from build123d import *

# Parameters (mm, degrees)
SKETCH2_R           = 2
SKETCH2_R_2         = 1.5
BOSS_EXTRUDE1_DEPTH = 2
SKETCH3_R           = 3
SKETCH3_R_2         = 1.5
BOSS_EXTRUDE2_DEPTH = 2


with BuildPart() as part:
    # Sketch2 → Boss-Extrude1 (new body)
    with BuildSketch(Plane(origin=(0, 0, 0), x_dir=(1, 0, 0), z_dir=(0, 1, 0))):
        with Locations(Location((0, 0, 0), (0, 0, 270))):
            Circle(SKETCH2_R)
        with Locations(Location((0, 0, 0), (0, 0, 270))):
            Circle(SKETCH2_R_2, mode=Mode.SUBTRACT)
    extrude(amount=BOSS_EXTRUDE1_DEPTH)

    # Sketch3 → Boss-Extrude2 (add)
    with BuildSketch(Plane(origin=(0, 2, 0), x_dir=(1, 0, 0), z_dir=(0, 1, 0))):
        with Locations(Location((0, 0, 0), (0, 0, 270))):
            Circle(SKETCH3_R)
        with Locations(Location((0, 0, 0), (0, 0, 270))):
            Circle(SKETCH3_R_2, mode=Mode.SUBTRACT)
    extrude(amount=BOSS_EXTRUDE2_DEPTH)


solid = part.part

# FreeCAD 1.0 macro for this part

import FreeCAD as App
import Part
import Sketcher

V = App.Vector
Q = App.Units.Quantity

doc = App.newDocument("Part")
body = doc.addObject("PartDesign::Body", "Body")

sketch1 = body.newObject("Sketcher::SketchObject", "Sketch")
sketch1.AttachmentSupport = (doc.getObject("XZ_Plane"), [""])
sketch1.MapMode = "FlatFace"
sketch1.addGeometry([
    Part.Circle(V(0, 0, 0), V(0, 0, 1), 2),
    Part.Circle(V(0, 0, 0), V(0, 0, 1), 1.5),
], False)
sketch1.addConstraint([
    Sketcher.Constraint("Coincident", 0, 3, -1, 1),
    Sketcher.Constraint("Coincident", 1, 3, -1, 1),
    Sketcher.Constraint("Diameter", 0, Q("4 mm")),
    Sketcher.Constraint("Diameter", 1, Q("3 mm")),
])
pad1 = body.newObject("PartDesign::Pad", "Pad")
pad1.Profile = sketch1
pad1.Length = 2
pad1.Reversed = True

sketch2 = body.newObject("Sketcher::SketchObject", "Sketch001")
sketch2.AttachmentSupport = (doc.getObject("XZ_Plane"), [""])
sketch2.MapMode = "FlatFace"
sketch2.AttachmentOffset = App.Placement(V(0, 0, -2), App.Rotation())
sketch2.addGeometry([
    Part.Circle(V(0, 0, 0), V(0, 0, 1), 3),
    Part.Circle(V(0, 0, 0), V(0, 0, 1), 1.5),
], False)
sketch2.addConstraint([
    Sketcher.Constraint("Coincident", 0, 3, -1, 1),
    Sketcher.Constraint("Coincident", 1, 3, -1, 1),
    Sketcher.Constraint("Diameter", 0, Q("6 mm")),
    Sketcher.Constraint("Diameter", 1, Q("3 mm")),
])
pad2 = body.newObject("PartDesign::Pad", "Pad001")
pad2.Profile = sketch2
pad2.Length = 2
pad2.Reversed = True

doc.recompute()
